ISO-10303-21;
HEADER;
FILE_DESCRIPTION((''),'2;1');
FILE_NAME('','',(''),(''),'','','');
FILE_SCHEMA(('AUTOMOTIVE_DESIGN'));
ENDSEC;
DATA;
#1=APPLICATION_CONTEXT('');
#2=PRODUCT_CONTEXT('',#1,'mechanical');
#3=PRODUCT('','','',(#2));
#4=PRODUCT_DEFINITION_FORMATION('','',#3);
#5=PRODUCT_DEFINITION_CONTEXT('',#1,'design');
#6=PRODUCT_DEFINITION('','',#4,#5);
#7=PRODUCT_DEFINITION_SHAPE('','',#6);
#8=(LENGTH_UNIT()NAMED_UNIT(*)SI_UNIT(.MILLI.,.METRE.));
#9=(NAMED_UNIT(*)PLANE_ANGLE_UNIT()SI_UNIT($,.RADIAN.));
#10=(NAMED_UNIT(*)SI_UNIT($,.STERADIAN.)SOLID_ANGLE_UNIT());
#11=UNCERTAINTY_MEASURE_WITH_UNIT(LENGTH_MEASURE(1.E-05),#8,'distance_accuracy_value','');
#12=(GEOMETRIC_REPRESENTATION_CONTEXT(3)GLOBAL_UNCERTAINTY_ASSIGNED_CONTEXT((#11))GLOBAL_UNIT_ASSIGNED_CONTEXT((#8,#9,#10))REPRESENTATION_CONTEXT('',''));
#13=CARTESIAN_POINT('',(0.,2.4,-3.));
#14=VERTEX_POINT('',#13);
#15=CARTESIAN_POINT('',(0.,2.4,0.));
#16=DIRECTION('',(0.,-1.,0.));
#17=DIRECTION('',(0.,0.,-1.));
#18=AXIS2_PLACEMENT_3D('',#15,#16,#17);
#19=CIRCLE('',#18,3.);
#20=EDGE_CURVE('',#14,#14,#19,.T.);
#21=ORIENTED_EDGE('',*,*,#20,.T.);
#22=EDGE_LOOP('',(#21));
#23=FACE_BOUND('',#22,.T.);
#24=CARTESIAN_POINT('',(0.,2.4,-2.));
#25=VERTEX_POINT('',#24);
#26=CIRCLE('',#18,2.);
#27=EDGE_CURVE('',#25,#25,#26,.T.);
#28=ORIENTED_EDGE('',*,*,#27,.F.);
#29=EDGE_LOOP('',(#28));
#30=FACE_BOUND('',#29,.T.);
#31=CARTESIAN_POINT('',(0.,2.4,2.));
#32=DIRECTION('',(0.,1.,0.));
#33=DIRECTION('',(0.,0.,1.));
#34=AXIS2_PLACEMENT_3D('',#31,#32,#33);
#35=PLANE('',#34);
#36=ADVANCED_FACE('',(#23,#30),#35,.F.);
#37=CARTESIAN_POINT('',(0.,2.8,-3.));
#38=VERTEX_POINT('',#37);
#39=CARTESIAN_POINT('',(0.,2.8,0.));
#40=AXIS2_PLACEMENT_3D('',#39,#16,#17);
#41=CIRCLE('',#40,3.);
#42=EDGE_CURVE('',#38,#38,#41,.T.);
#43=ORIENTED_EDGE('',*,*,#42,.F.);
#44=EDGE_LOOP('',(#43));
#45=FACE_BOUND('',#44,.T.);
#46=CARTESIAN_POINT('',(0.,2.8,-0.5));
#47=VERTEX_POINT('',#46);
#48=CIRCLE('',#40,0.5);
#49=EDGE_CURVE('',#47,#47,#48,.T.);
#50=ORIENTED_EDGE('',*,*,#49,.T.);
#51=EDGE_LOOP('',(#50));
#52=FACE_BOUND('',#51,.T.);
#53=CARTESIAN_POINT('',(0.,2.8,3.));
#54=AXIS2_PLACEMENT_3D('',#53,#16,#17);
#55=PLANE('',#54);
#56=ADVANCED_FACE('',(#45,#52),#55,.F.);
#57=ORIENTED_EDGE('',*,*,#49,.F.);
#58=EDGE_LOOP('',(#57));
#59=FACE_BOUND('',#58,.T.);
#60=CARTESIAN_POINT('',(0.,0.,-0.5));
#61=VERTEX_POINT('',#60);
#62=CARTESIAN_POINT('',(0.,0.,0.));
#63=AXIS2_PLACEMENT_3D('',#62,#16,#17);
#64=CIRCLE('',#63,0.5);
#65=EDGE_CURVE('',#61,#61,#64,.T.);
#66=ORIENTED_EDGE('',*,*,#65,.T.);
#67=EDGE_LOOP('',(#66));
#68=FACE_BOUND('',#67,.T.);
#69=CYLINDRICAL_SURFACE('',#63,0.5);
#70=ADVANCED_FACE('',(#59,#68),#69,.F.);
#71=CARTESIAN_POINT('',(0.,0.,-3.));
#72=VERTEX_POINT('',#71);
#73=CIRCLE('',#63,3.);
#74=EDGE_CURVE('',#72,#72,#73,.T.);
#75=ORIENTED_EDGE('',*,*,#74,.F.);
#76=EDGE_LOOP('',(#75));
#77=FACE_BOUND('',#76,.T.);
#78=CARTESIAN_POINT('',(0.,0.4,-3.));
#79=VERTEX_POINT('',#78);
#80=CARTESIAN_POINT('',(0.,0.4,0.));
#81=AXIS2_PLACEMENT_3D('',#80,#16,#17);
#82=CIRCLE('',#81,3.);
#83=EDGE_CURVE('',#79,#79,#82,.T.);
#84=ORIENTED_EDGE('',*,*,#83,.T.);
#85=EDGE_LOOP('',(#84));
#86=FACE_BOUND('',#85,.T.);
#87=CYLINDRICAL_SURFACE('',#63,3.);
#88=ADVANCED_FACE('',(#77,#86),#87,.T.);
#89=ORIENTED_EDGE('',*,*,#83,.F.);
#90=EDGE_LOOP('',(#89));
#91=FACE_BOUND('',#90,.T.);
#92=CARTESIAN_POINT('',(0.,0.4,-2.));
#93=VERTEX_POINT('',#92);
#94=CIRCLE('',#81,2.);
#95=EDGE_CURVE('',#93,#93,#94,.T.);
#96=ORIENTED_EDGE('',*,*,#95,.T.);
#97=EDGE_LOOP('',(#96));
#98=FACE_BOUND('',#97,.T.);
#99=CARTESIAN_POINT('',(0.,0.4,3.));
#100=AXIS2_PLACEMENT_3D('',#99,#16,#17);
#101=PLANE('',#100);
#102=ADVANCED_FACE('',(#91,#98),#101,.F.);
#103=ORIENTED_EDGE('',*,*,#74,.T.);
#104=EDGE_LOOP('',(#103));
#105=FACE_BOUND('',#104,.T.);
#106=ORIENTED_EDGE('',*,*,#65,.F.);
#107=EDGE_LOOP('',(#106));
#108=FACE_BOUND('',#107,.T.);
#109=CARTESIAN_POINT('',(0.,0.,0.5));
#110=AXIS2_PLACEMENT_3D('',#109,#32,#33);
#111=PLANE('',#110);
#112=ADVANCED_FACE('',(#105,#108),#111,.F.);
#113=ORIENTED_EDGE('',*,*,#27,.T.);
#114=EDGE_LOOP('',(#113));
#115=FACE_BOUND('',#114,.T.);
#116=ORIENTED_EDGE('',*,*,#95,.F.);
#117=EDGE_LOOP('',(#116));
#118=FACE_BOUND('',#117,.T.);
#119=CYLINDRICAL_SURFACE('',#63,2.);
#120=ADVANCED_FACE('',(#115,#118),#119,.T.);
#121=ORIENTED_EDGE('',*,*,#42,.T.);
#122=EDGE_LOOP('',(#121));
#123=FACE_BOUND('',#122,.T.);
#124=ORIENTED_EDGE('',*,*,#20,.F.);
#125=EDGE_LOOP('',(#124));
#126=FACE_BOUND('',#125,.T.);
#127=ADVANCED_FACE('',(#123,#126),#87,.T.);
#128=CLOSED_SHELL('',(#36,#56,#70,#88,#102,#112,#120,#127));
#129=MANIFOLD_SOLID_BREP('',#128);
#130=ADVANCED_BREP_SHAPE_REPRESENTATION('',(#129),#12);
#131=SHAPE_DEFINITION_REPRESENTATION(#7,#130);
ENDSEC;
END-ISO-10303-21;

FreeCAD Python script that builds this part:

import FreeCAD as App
import Part
import Sketcher
from FreeCAD import Vector
Q = App.Units.Quantity


def add_polygon(sketch, points):
    """Adds a closed chain of lines whose ends are joined by coincident constraints."""
    first, n = sketch.GeometryCount, len(points)
    for a, b in zip(points, points[1:] + points[:1]):
        sketch.addGeometry(Part.LineSegment(App.Vector(*a, 0), App.Vector(*b, 0)), False)
    for i in range(n):
        sketch.addConstraint(Sketcher.Constraint("Coincident", first + i, 2, first + (i + 1) % n, 1))

doc = App.newDocument("Part")
params = doc.addObject("Spreadsheet::Sheet", "Params")
for row, (alias, value) in enumerate([
    ("sketch1_width", "2 mm"),
    ("sketch1_height", "1 mm"),
    ("sketch1_width2", "0.4 mm"),
    ("sketch1_height2", "2.5 mm"),
    ("revolution_angle", "360 deg"),
], start=1):
    params.set(f"A{row}", alias)
    params.set(f"B{row}", "=" + value)
    params.setAlias(f"B{row}", alias)

body = doc.addObject("PartDesign::Body", "Body")

# Sketch on YZ plane
sketch1 = body.newObject("Sketcher::SketchObject", "Sketch")
sketch1.AttachmentSupport = (doc.getObject("YZ_Plane"), [""])
sketch1.MapMode = "FlatFace"
add_polygon(sketch1, [(2.8, 0.5), (2.8, 3), (2.4, 3), (2.4, 2), (0.4, 2), (0.4, 3), (0, 3), (0, 0.5)])  # lines 0-7
sketch1.addConstraint(Sketcher.Constraint("Vertical", 0))
sketch1.addConstraint(Sketcher.Constraint("Horizontal", 1))
sketch1.addConstraint(Sketcher.Constraint("Vertical", 2))
sketch1.addConstraint(Sketcher.Constraint("Horizontal", 3))
sketch1.addConstraint(Sketcher.Constraint("Vertical", 4))
sketch1.addConstraint(Sketcher.Constraint("Horizontal", 5))
sketch1.addConstraint(Sketcher.Constraint("Vertical", 6))
sketch1.addConstraint(Sketcher.Constraint("Horizontal", 7))
sketch1.addConstraint(Sketcher.Constraint("PointOnObject", 5, 2, -2))
sketch1.addConstraint(Sketcher.Constraint("Horizontal", 1, 2, 4, 2))
sketch1.addConstraint(Sketcher.Constraint("Equal", 1, 5))
sketch1.addConstraint(Sketcher.Constraint("DistanceX", 3, 2, 3, 1, Q("2 mm")))
sketch1.addConstraint(Sketcher.Constraint("DistanceY", 2, 2, 2, 1, Q("1 mm")))
sketch1.addConstraint(Sketcher.Constraint("DistanceX", 1, 2, 1, 1, Q("0.4 mm")))
sketch1.addConstraint(Sketcher.Constraint("DistanceY", 0, 1, 0, 2, Q("2.5 mm")))
sketch1.addConstraint(Sketcher.Constraint("DistanceY", -1, 1, 0, 2, Q("3 mm")))
sketch1.setExpression("Constraints[19]", "Params.sketch1_width")
sketch1.setExpression("Constraints[20]", "Params.sketch1_height")
sketch1.setExpression("Constraints[21]", "Params.sketch1_width2")
sketch1.setExpression("Constraints[22]", "Params.sketch1_height2")
revolution = body.newObject("PartDesign::Revolution", "Revolution")
revolution.Profile = sketch1
revolution.ReferenceAxis = (sketch1, ["H_Axis"])
revolution.setExpression("Angle", "Params.revolution_angle")

doc.recompute()
